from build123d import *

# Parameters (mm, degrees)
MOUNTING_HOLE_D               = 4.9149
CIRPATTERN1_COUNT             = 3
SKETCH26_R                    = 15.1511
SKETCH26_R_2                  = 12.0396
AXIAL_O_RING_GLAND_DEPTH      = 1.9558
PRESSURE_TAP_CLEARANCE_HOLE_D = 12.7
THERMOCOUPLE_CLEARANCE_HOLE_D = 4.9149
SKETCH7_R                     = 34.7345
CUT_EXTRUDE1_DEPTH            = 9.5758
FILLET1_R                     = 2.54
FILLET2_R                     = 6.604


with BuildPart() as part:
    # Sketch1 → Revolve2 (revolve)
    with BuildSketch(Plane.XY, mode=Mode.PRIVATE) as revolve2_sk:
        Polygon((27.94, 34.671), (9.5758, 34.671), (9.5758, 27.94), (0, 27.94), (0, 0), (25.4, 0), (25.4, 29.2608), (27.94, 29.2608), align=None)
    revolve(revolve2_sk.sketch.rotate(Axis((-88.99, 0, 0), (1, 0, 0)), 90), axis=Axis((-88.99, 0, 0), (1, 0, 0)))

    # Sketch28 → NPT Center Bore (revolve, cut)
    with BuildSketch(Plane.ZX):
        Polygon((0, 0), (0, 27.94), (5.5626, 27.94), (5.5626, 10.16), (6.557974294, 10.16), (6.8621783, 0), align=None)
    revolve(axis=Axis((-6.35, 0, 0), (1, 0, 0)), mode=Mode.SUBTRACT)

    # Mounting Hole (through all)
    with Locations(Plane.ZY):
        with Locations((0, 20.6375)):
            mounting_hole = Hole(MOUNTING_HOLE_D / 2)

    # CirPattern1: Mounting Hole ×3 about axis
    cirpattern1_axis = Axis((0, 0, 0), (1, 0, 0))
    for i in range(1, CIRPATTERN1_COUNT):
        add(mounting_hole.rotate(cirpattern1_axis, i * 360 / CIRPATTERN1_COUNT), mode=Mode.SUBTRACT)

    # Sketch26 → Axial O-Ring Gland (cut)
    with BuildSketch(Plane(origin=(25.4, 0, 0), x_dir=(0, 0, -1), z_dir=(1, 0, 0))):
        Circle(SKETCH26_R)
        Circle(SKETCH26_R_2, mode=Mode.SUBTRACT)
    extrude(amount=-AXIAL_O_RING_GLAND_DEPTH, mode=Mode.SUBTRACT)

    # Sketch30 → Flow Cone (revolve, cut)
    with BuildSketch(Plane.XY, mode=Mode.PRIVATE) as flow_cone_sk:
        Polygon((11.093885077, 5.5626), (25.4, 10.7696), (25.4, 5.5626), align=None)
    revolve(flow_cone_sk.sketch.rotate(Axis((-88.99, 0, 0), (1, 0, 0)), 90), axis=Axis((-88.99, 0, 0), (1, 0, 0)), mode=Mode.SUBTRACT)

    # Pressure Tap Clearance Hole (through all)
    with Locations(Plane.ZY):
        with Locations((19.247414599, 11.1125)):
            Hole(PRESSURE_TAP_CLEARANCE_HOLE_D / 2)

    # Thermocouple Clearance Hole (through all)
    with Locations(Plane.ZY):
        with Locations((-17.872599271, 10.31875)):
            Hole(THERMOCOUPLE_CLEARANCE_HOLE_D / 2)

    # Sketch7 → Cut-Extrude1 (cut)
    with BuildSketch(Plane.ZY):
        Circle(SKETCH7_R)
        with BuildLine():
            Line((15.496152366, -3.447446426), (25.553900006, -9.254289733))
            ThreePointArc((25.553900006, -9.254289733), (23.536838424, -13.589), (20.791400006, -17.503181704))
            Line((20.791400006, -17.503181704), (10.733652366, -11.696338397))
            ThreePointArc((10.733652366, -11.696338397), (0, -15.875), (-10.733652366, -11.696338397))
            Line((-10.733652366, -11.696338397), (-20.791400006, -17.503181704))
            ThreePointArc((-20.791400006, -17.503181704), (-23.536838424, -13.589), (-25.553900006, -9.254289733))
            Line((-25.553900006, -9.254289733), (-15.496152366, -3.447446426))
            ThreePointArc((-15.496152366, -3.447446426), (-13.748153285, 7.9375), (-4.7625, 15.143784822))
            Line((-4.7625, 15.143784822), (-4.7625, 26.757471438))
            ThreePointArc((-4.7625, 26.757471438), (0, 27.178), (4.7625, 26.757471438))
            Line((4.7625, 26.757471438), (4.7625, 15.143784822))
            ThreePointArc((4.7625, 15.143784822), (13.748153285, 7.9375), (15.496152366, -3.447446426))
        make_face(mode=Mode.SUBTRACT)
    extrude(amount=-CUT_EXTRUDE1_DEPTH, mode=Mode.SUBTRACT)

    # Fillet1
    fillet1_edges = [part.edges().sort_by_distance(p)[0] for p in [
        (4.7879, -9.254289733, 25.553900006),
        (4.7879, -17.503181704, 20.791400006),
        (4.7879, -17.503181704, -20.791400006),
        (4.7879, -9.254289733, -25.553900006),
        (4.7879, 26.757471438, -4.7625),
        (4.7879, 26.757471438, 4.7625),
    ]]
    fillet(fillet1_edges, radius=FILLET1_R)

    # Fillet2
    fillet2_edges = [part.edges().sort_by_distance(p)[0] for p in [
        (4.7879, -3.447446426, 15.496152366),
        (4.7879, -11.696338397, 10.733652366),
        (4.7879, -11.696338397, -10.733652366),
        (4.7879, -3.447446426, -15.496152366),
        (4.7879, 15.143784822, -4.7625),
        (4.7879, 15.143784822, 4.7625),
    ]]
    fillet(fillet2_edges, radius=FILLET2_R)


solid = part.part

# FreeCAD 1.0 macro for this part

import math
import FreeCAD as App
import Part
import Sketcher

V = App.Vector
Q = App.Units.Quantity


def edges_at(feature, points):
    """Names of the edges that pass closest to the given points."""
    edges = feature.Shape.Edges
    near = lambda p: min(range(len(edges)), key=lambda i: edges[i].distToShape(Part.Vertex(*p))[0])
    return sorted({f"Edge{near(p) + 1}" for p in points})


def add_polygon(sketch, points):
    """Adds a closed chain of lines whose ends are joined by coincident constraints."""
    first, n = sketch.GeometryCount, len(points)
    for a, b in zip(points, points[1:] + points[:1]):
        sketch.addGeometry(Part.LineSegment(App.Vector(*a, 0), App.Vector(*b, 0)), False)
    for i in range(n):
        sketch.addConstraint(Sketcher.Constraint("Coincident", first + i, 2, first + (i + 1) % n, 1))

doc = App.newDocument("Part")
body = doc.addObject("PartDesign::Body", "Body")

# Sketch on XY plane
sketch1 = body.newObject("Sketcher::SketchObject", "Sketch")
sketch1.AttachmentSupport = (doc.getObject("XY_Plane"), [""])
sketch1.MapMode = "FlatFace"
add_polygon(sketch1, [(27.9, 34.7), (9.6, 34.7), (9.6, 27.9), (0, 27.9), (0, 0), (25.4, 0), (25.4, 29.3), (27.9, 29.3)])  # lines 0-7
sketch1.addConstraint([
    Sketcher.Constraint("Horizontal", 0),
    Sketcher.Constraint("Vertical", 1),
    Sketcher.Constraint("Horizontal", 2),
    Sketcher.Constraint("Vertical", 3),
    Sketcher.Constraint("Horizontal", 4),
    Sketcher.Constraint("Vertical", 5),
    Sketcher.Constraint("Horizontal", 6),
    Sketcher.Constraint("Vertical", 7),
    Sketcher.Constraint("Coincident", 3, 2, -1, 1),
    Sketcher.Constraint("DistanceX", 4, 1, 4, 2, Q("1 in")),
    Sketcher.Constraint("DistanceX", 6, 1, 6, 2, Q("0.1 in")),
    Sketcher.Constraint("DistanceY", 3, 2, 3, 1, Q("1.1 in")),
    Sketcher.Constraint("DistanceX", 0, 2, 0, 1, Q("0.723 in")),
    Sketcher.Constraint("DistanceY", 1, 2, 1, 1, Q("0.265 in")),
    Sketcher.Constraint("DistanceY", 5, 1, 5, 2, Q("1.152 in")),
])
revolution = body.newObject("PartDesign::Revolution", "Revolution")
revolution.Profile = sketch1
revolution.ReferenceAxis = (sketch1, ["H_Axis"])
revolution.Angle = 360

# Sketch on XZ plane
sketch2 = body.newObject("Sketcher::SketchObject", "Sketch001")
sketch2.AttachmentSupport = (doc.getObject("XZ_Plane"), [""])
sketch2.MapMode = "FlatFace"
add_polygon(sketch2, [(27.9, 0), (0, 0), (0, 6.9), (10.2, 6.6), (10.2, 5.6), (27.9, 5.6)])  # lines 0-5
sketch2.addConstraint([
    Sketcher.Constraint("Horizontal", 0),
    Sketcher.Constraint("Vertical", 1),
    Sketcher.Constraint("Vertical", 3),
    Sketcher.Constraint("Horizontal", 4),
    Sketcher.Constraint("Vertical", 5),
    Sketcher.Constraint("Coincident", 0, 2, -1, 1),
    Sketcher.Constraint("DistanceX", 0, 2, 0, 1, Q("1.1 in")),
    Sketcher.Constraint("DistanceX", 4, 1, 4, 2, Q("0.7 in")),
    Sketcher.Constraint("DistanceY", 5, 2, 5, 1, Q("0.219 in")),
    Sketcher.Constraint("DistanceY", 1, 1, 1, 2, Q("6.862178 mm")),
    Sketcher.Constraint("DistanceY", 3, 2, 3, 1, Q("0.995374 mm")),
])
groove = body.newObject("PartDesign::Groove", "Groove")
groove.Profile = sketch2
groove.ReferenceAxis = (sketch2, ["H_Axis"])
groove.Angle = 360

# Sketch on YZ plane
sketch3 = body.newObject("Sketcher::SketchObject", "Sketch002")
sketch3.AttachmentSupport = (doc.getObject("YZ_Plane"), [""])
sketch3.MapMode = "FlatFace"
sketch3.addGeometry(Part.Circle(V(20.6, 0, 0), V(0, 0, 1), 2.5), False)
sketch3.addConstraint([
    Sketcher.Constraint("PointOnObject", 0, 3, -1),
    Sketcher.Constraint("Diameter", 0, Q("0.1935 in")),
    Sketcher.Constraint("DistanceX", -1, 1, 0, 3, Q("0.8125 in")),
])
doc.recompute()
hole = body.newObject("PartDesign::Hole", "Hole")
hole.Profile = sketch3
hole.ThreadType = "None"
hole.Diameter = Q("0.1935 in")
hole.DepthType = "ThroughAll"
hole.Reversed = True
doc.recompute()

polarpattern = body.newObject("PartDesign::PolarPattern", "PolarPattern")
polarpattern.Originals = [hole]
polarpattern.Axis = (doc.getObject("X_Axis"), [""])
polarpattern.Angle = 360
polarpattern.Occurrences = 3
body.Tip = polarpattern

# Sketch on YZ plane
sketch4 = body.newObject("Sketcher::SketchObject", "Sketch003")
sketch4.AttachmentSupport = (doc.getObject("YZ_Plane"), [""])
sketch4.MapMode = "FlatFace"
sketch4.AttachmentOffset = App.Placement(V(0, 0, 1 * 25.4), App.Rotation())
sketch4.addGeometry([
    Part.Circle(V(0, 0, 0), V(0, 0, 1), 15),
    Part.Circle(V(0, 0, 0), V(0, 0, 1), 12),
], False)
sketch4.addConstraint([
    Sketcher.Constraint("Coincident", 0, 3, -1, 1),
    Sketcher.Constraint("Coincident", 1, 3, -1, 1),
    Sketcher.Constraint("Diameter", 0, Q("1.193 in")),
    Sketcher.Constraint("Diameter", 1, Q("0.948 in")),
])
pocket1 = body.newObject("PartDesign::Pocket", "Pocket")
pocket1.Profile = sketch4
pocket1.Length = Q("0.077 in")

# Sketch on XY plane
sketch5 = body.newObject("Sketcher::SketchObject", "Sketch004")
sketch5.AttachmentSupport = (doc.getObject("XY_Plane"), [""])
sketch5.MapMode = "FlatFace"
add_polygon(sketch5, [(25, 11), (11, 6), (25, 6)])  # lines 0-2
sketch5.addConstraint([
    Sketcher.Constraint("Horizontal", 1),
    Sketcher.Constraint("Vertical", 2),
    Sketcher.Constraint("DistanceX", -1, 1, 1, 2, Q("1 in")),
    Sketcher.Constraint("Angle", 0, Q("-160 deg")),
    Sketcher.Constraint("DistanceY", 2, 1, 2, 2, Q("0.205 in")),
    Sketcher.Constraint("DistanceY", -1, 1, 0, 2, Q("0.219 in")),
])
groove2 = body.newObject("PartDesign::Groove", "Groove001")
groove2.Profile = sketch5
groove2.ReferenceAxis = (sketch5, ["H_Axis"])
groove2.Angle = 360

# Sketch on YZ plane
sketch6 = body.newObject("Sketcher::SketchObject", "Sketch005")
sketch6.AttachmentSupport = (doc.getObject("YZ_Plane"), [""])
sketch6.MapMode = "FlatFace"
sketch6.addGeometry(Part.Circle(V(11, 19, 0), V(0, 0, 1), 6), False)
sketch6.addConstraint([
    Sketcher.Constraint("Diameter", 0, Q("0.5 in")),
    Sketcher.Constraint("DistanceX", -1, 1, 0, 3, Q("0.4375 in")),
    Sketcher.Constraint("DistanceY", -1, 1, 0, 3, Q("19.247415 mm")),
])
doc.recompute()
hole2 = body.newObject("PartDesign::Hole", "Hole001")
hole2.Profile = sketch6
hole2.ThreadType = "None"
hole2.Diameter = Q("0.5 in")
hole2.DepthType = "ThroughAll"
hole2.Reversed = True

# Sketch on YZ plane
sketch7 = body.newObject("Sketcher::SketchObject", "Sketch006")
sketch7.AttachmentSupport = (doc.getObject("YZ_Plane"), [""])
sketch7.MapMode = "FlatFace"
sketch7.addGeometry(Part.Circle(V(10.3, -17.9, 0), V(0, 0, 1), 2.5), False)
sketch7.addConstraint([
    Sketcher.Constraint("Diameter", 0, Q("0.1935 in")),
    Sketcher.Constraint("DistanceX", -1, 1, 0, 3, Q("0.40625 in")),
    Sketcher.Constraint("DistanceY", 0, 3, -1, 1, Q("17.872599 mm")),
])
doc.recompute()
hole3 = body.newObject("PartDesign::Hole", "Hole002")
hole3.Profile = sketch7
hole3.ThreadType = "None"
hole3.Diameter = Q("0.1935 in")
hole3.DepthType = "ThroughAll"
hole3.Reversed = True

# Sketch on YZ plane
sketch8 = body.newObject("Sketcher::SketchObject", "Sketch007")
sketch8.AttachmentSupport = (doc.getObject("YZ_Plane"), [""])
sketch8.MapMode = "FlatFace"
sketch8.addGeometry([
    Part.Circle(V(0, 0, 0), V(0, 0, 1), 35),  # 0
    Part.ArcOfCircle(Part.Circle(V(0, 0, 0), V(0, 0, 1), 16), math.radians(17), math.radians(103)),  # 1
    Part.LineSegment(V(-3, 15, 0), V(-9, 26, 0)),  # 2
    Part.ArcOfCircle(Part.Circle(V(0, 0, 0), V(0, 0, 1), 27), math.radians(110), math.radians(130)),  # 3
    Part.LineSegment(V(-18, 21, 0), V(-12, 11, 0)),  # 4
    Part.ArcOfCircle(Part.Circle(V(0, 0, 0), V(0, 0, 1), 16), math.radians(137), math.radians(223)),  # 5
    Part.LineSegment(V(-12, -11, 0), V(-18, -21, 0)),  # 6
    Part.ArcOfCircle(Part.Circle(V(0, 0, 0), V(0, 0, 1), 27), math.radians(-130), math.radians(-110)),  # 7
    Part.LineSegment(V(-9, -26, 0), V(-3, -15, 0)),  # 8
    Part.ArcOfCircle(Part.Circle(V(0, 0, 0), V(0, 0, 1), 16), math.radians(-103), math.radians(-17)),  # 9
    Part.LineSegment(V(15, -5, 0), V(27, -5, 0)),  # 10
    Part.ArcOfCircle(Part.Circle(V(0, 0, 0), V(0, 0, 1), 27), math.radians(-10), math.radians(10)),  # 11
    Part.LineSegment(V(27, 5, 0), V(15, 5, 0)),  # 12
], False)
sketch8.addConstraint([
    Sketcher.Constraint("Coincident", 1, 2, 2, 1),
    Sketcher.Constraint("Coincident", 2, 2, 3, 1),
    Sketcher.Constraint("Coincident", 3, 2, 4, 1),
    Sketcher.Constraint("Coincident", 4, 2, 5, 1),
    Sketcher.Constraint("Coincident", 5, 2, 6, 1),
    Sketcher.Constraint("Coincident", 6, 2, 7, 1),
    Sketcher.Constraint("Coincident", 7, 2, 8, 1),
    Sketcher.Constraint("Coincident", 8, 2, 9, 1),
    Sketcher.Constraint("Coincident", 9, 2, 10, 1),
    Sketcher.Constraint("Coincident", 10, 2, 11, 1),
    Sketcher.Constraint("Coincident", 11, 2, 12, 1),
    Sketcher.Constraint("Coincident", 12, 2, 1, 1),
    Sketcher.Constraint("Horizontal", 10),
    Sketcher.Constraint("Horizontal", 12),
    Sketcher.Constraint("Coincident", 0, 3, -1, 1),
    Sketcher.Constraint("Coincident", 1, 3, -1, 1),
    Sketcher.Constraint("Coincident", 3, 3, -1, 1),
    Sketcher.Constraint("Coincident", 5, 3, -1, 1),
    Sketcher.Constraint("Coincident", 7, 3, -1, 1),
    Sketcher.Constraint("Coincident", 9, 3, -1, 1),
    Sketcher.Constraint("Coincident", 11, 3, -1, 1),
    Sketcher.Constraint("Equal", 1, 5),
    Sketcher.Constraint("Equal", 3, 7),
    Sketcher.Constraint("Equal", 5, 9),
    Sketcher.Constraint("Equal", 7, 11),
    Sketcher.Constraint("Parallel", 2, 4),
    Sketcher.Constraint("Parallel", 6, 8),
    Sketcher.Constraint("Vertical", 4, 2, 5, 2),
    Sketcher.Constraint("Vertical", 3, 2, 6, 2),
    Sketcher.Constraint("Vertical", 2, 2, 7, 2),
    Sketcher.Constraint("Vertical", 10, 2, 11, 2),
    Sketcher.Constraint("Equal", 2, 4),
    Sketcher.Constraint("Radius", 3, Q("1.07 in")),
    Sketcher.Constraint("Diameter", 0, Q("2.735 in")),
    Sketcher.Constraint("Angle", 2, Q("120 deg")),
    Sketcher.Constraint("Radius", 1, Q("0.625 in")),
    Sketcher.Constraint("DistanceY", 9, 2, -1, 1, Q("0.1875 in")),
    Sketcher.Constraint("DistanceY", 3, 2, 2, 2, Q("0.1875 in")),
])
pocket2 = body.newObject("PartDesign::Pocket", "Pocket001")
pocket2.Profile = sketch8
pocket2.Length = Q("0.377 in")
pocket2.Reversed = True
doc.recompute()

fillet = body.newObject("PartDesign::Fillet", "Fillet")
fillet.Base = (pocket2, edges_at(pocket2, [
    (4.788, -9.254, 25.554),
    (4.788, -17.503, 20.791),
    (4.788, -17.503, -20.791),
    (4.788, -9.254, -25.554),
    (4.788, 26.757, -4.763),
    (4.788, 26.757, 4.763),
]))
fillet.Radius = Q("0.1 in")
doc.recompute()

fillet2 = body.newObject("PartDesign::Fillet", "Fillet001")
fillet2.Base = (fillet, edges_at(fillet, [
    (4.788, -3.447, 15.496),
    (4.788, -11.696, 10.734),
    (4.788, -11.696, -10.734),
    (4.788, -3.447, -15.496),
    (4.788, 15.144, -4.763),
    (4.788, 15.144, 4.763),
]))
fillet2.Radius = Q("0.26 in")

doc.recompute()
